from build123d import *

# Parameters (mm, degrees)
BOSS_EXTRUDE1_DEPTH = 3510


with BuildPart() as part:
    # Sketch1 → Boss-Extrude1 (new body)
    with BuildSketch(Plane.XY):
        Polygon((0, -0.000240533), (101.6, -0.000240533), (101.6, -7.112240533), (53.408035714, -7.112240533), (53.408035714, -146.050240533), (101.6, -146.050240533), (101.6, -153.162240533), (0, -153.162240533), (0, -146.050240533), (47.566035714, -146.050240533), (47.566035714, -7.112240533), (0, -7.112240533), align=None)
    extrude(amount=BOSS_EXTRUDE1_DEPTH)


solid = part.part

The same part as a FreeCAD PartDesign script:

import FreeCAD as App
import Part
import Sketcher
from FreeCAD import Vector
Q = App.Units.Quantity

doc = App.newDocument("Part")
body = doc.addObject("PartDesign::Body", "Body")

# Sketch on XY plane
sketch1 = doc.addObject("Sketcher::SketchObject", "Sketch")
body.addObject(sketch1)
sketch1.AttachmentSupport = (doc.XY_Plane, [""])
sketch1.MapMode = "FlatFace"
sketch1.addGeometry(Part.LineSegment(Vector(101.6, -0.000241, 0), Vector(0, -0.000241, 0)), False)
sketch1.addGeometry(Part.LineSegment(Vector(0, -0.000241, 0), Vector(0, -7.112241, 0)), False)
sketch1.addGeometry(Part.LineSegment(Vector(0, -7.112241, 0), Vector(47.566036, -7.112241, 0)), False)
sketch1.addGeometry(Part.LineSegment(Vector(47.566036, -7.112241, 0), Vector(47.566036, -146.050241, 0)), False)
sketch1.addGeometry(Part.LineSegment(Vector(47.566036, -146.050241, 0), Vector(0, -146.050241, 0)), False)
sketch1.addGeometry(Part.LineSegment(Vector(0, -146.050241, 0), Vector(0, -153.162241, 0)), False)
sketch1.addGeometry(Part.LineSegment(Vector(0, -153.162241, 0), Vector(101.6, -153.162241, 0)), False)
sketch1.addGeometry(Part.LineSegment(Vector(101.6, -153.162241, 0), Vector(101.6, -146.050241, 0)), False)
sketch1.addGeometry(Part.LineSegment(Vector(101.6, -146.050241, 0), Vector(53.408036, -146.050241, 0)), False)
sketch1.addGeometry(Part.LineSegment(Vector(53.408036, -146.050241, 0), Vector(53.408036, -7.112241, 0)), False)
sketch1.addGeometry(Part.LineSegment(Vector(53.408036, -7.112241, 0), Vector(101.6, -7.112241, 0)), False)
sketch1.addGeometry(Part.LineSegment(Vector(101.6, -7.112241, 0), Vector(101.6, -0.000241, 0)), False)
sketch1.addConstraint(Sketcher.Constraint("Coincident", 0, 2, 1, 1))
sketch1.addConstraint(Sketcher.Constraint("Coincident", 1, 2, 2, 1))
sketch1.addConstraint(Sketcher.Constraint("Coincident", 2, 2, 3, 1))
sketch1.addConstraint(Sketcher.Constraint("Coincident", 3, 2, 4, 1))
sketch1.addConstraint(Sketcher.Constraint("Coincident", 4, 2, 5, 1))
sketch1.addConstraint(Sketcher.Constraint("Coincident", 5, 2, 6, 1))
sketch1.addConstraint(Sketcher.Constraint("Coincident", 6, 2, 7, 1))
sketch1.addConstraint(Sketcher.Constraint("Coincident", 7, 2, 8, 1))
sketch1.addConstraint(Sketcher.Constraint("Coincident", 8, 2, 9, 1))
sketch1.addConstraint(Sketcher.Constraint("Coincident", 9, 2, 10, 1))
sketch1.addConstraint(Sketcher.Constraint("Coincident", 10, 2, 11, 1))
sketch1.addConstraint(Sketcher.Constraint("Coincident", 11, 2, 0, 1))
sketch1.addConstraint(Sketcher.Constraint("Horizontal", 0))
sketch1.addConstraint(Sketcher.Constraint("Vertical", 1))
sketch1.addConstraint(Sketcher.Constraint("Horizontal", 2))
sketch1.addConstraint(Sketcher.Constraint("Vertical", 3))
sketch1.addConstraint(Sketcher.Constraint("Horizontal", 4))
sketch1.addConstraint(Sketcher.Constraint("Vertical", 5))
sketch1.addConstraint(Sketcher.Constraint("Horizontal", 6))
sketch1.addConstraint(Sketcher.Constraint("Vertical", 7))
sketch1.addConstraint(Sketcher.Constraint("Horizontal", 8))
sketch1.addConstraint(Sketcher.Constraint("Vertical", 9))
sketch1.addConstraint(Sketcher.Constraint("Horizontal", 10))
sketch1.addConstraint(Sketcher.Constraint("Vertical", 11))
sketch1.addConstraint(Sketcher.Constraint("PointOnObject", 0, 2, -2))
sketch1.addConstraint(Sketcher.Constraint("PointOnObject", 4, 2, -2))
sketch1.addConstraint(Sketcher.Constraint("Horizontal", 4, 2, 7, 2))
sketch1.addConstraint(Sketcher.Constraint("Horizontal", 2, 2, 9, 2))
sketch1.addConstraint(Sketcher.Constraint("Vertical", 7, 2, 10, 2))
sketch1.addConstraint(Sketcher.Constraint("Equal", 1, 5))
sketch1.addConstraint(Sketcher.Constraint("DistanceX", 0, 2, 0, 1, Q("4 in")))
sketch1.addConstraint(Sketcher.Constraint("DistanceY", 1, 2, 1, 1, Q("0.28 in")))
sketch1.addConstraint(Sketcher.Constraint("DistanceY", 3, 2, 3, 1, Q("5.47 in")))
sketch1.addConstraint(Sketcher.Constraint("DistanceX", 3, 2, 8, 2, Q("0.23 in")))
sketch1.addConstraint(Sketcher.Constraint("DistanceX", 2, 1, 2, 2, Q("47.566036 mm")))
sketch1.addConstraint(Sketcher.Constraint("DistanceY", 0, 2, -1, 1, Q("0.000241 mm")))
pad1 = doc.addObject("PartDesign::Pad", "Pad")
body.addObject(pad1)
pad1.Profile = sketch1
pad1.Length = 3510

doc.recompute()
